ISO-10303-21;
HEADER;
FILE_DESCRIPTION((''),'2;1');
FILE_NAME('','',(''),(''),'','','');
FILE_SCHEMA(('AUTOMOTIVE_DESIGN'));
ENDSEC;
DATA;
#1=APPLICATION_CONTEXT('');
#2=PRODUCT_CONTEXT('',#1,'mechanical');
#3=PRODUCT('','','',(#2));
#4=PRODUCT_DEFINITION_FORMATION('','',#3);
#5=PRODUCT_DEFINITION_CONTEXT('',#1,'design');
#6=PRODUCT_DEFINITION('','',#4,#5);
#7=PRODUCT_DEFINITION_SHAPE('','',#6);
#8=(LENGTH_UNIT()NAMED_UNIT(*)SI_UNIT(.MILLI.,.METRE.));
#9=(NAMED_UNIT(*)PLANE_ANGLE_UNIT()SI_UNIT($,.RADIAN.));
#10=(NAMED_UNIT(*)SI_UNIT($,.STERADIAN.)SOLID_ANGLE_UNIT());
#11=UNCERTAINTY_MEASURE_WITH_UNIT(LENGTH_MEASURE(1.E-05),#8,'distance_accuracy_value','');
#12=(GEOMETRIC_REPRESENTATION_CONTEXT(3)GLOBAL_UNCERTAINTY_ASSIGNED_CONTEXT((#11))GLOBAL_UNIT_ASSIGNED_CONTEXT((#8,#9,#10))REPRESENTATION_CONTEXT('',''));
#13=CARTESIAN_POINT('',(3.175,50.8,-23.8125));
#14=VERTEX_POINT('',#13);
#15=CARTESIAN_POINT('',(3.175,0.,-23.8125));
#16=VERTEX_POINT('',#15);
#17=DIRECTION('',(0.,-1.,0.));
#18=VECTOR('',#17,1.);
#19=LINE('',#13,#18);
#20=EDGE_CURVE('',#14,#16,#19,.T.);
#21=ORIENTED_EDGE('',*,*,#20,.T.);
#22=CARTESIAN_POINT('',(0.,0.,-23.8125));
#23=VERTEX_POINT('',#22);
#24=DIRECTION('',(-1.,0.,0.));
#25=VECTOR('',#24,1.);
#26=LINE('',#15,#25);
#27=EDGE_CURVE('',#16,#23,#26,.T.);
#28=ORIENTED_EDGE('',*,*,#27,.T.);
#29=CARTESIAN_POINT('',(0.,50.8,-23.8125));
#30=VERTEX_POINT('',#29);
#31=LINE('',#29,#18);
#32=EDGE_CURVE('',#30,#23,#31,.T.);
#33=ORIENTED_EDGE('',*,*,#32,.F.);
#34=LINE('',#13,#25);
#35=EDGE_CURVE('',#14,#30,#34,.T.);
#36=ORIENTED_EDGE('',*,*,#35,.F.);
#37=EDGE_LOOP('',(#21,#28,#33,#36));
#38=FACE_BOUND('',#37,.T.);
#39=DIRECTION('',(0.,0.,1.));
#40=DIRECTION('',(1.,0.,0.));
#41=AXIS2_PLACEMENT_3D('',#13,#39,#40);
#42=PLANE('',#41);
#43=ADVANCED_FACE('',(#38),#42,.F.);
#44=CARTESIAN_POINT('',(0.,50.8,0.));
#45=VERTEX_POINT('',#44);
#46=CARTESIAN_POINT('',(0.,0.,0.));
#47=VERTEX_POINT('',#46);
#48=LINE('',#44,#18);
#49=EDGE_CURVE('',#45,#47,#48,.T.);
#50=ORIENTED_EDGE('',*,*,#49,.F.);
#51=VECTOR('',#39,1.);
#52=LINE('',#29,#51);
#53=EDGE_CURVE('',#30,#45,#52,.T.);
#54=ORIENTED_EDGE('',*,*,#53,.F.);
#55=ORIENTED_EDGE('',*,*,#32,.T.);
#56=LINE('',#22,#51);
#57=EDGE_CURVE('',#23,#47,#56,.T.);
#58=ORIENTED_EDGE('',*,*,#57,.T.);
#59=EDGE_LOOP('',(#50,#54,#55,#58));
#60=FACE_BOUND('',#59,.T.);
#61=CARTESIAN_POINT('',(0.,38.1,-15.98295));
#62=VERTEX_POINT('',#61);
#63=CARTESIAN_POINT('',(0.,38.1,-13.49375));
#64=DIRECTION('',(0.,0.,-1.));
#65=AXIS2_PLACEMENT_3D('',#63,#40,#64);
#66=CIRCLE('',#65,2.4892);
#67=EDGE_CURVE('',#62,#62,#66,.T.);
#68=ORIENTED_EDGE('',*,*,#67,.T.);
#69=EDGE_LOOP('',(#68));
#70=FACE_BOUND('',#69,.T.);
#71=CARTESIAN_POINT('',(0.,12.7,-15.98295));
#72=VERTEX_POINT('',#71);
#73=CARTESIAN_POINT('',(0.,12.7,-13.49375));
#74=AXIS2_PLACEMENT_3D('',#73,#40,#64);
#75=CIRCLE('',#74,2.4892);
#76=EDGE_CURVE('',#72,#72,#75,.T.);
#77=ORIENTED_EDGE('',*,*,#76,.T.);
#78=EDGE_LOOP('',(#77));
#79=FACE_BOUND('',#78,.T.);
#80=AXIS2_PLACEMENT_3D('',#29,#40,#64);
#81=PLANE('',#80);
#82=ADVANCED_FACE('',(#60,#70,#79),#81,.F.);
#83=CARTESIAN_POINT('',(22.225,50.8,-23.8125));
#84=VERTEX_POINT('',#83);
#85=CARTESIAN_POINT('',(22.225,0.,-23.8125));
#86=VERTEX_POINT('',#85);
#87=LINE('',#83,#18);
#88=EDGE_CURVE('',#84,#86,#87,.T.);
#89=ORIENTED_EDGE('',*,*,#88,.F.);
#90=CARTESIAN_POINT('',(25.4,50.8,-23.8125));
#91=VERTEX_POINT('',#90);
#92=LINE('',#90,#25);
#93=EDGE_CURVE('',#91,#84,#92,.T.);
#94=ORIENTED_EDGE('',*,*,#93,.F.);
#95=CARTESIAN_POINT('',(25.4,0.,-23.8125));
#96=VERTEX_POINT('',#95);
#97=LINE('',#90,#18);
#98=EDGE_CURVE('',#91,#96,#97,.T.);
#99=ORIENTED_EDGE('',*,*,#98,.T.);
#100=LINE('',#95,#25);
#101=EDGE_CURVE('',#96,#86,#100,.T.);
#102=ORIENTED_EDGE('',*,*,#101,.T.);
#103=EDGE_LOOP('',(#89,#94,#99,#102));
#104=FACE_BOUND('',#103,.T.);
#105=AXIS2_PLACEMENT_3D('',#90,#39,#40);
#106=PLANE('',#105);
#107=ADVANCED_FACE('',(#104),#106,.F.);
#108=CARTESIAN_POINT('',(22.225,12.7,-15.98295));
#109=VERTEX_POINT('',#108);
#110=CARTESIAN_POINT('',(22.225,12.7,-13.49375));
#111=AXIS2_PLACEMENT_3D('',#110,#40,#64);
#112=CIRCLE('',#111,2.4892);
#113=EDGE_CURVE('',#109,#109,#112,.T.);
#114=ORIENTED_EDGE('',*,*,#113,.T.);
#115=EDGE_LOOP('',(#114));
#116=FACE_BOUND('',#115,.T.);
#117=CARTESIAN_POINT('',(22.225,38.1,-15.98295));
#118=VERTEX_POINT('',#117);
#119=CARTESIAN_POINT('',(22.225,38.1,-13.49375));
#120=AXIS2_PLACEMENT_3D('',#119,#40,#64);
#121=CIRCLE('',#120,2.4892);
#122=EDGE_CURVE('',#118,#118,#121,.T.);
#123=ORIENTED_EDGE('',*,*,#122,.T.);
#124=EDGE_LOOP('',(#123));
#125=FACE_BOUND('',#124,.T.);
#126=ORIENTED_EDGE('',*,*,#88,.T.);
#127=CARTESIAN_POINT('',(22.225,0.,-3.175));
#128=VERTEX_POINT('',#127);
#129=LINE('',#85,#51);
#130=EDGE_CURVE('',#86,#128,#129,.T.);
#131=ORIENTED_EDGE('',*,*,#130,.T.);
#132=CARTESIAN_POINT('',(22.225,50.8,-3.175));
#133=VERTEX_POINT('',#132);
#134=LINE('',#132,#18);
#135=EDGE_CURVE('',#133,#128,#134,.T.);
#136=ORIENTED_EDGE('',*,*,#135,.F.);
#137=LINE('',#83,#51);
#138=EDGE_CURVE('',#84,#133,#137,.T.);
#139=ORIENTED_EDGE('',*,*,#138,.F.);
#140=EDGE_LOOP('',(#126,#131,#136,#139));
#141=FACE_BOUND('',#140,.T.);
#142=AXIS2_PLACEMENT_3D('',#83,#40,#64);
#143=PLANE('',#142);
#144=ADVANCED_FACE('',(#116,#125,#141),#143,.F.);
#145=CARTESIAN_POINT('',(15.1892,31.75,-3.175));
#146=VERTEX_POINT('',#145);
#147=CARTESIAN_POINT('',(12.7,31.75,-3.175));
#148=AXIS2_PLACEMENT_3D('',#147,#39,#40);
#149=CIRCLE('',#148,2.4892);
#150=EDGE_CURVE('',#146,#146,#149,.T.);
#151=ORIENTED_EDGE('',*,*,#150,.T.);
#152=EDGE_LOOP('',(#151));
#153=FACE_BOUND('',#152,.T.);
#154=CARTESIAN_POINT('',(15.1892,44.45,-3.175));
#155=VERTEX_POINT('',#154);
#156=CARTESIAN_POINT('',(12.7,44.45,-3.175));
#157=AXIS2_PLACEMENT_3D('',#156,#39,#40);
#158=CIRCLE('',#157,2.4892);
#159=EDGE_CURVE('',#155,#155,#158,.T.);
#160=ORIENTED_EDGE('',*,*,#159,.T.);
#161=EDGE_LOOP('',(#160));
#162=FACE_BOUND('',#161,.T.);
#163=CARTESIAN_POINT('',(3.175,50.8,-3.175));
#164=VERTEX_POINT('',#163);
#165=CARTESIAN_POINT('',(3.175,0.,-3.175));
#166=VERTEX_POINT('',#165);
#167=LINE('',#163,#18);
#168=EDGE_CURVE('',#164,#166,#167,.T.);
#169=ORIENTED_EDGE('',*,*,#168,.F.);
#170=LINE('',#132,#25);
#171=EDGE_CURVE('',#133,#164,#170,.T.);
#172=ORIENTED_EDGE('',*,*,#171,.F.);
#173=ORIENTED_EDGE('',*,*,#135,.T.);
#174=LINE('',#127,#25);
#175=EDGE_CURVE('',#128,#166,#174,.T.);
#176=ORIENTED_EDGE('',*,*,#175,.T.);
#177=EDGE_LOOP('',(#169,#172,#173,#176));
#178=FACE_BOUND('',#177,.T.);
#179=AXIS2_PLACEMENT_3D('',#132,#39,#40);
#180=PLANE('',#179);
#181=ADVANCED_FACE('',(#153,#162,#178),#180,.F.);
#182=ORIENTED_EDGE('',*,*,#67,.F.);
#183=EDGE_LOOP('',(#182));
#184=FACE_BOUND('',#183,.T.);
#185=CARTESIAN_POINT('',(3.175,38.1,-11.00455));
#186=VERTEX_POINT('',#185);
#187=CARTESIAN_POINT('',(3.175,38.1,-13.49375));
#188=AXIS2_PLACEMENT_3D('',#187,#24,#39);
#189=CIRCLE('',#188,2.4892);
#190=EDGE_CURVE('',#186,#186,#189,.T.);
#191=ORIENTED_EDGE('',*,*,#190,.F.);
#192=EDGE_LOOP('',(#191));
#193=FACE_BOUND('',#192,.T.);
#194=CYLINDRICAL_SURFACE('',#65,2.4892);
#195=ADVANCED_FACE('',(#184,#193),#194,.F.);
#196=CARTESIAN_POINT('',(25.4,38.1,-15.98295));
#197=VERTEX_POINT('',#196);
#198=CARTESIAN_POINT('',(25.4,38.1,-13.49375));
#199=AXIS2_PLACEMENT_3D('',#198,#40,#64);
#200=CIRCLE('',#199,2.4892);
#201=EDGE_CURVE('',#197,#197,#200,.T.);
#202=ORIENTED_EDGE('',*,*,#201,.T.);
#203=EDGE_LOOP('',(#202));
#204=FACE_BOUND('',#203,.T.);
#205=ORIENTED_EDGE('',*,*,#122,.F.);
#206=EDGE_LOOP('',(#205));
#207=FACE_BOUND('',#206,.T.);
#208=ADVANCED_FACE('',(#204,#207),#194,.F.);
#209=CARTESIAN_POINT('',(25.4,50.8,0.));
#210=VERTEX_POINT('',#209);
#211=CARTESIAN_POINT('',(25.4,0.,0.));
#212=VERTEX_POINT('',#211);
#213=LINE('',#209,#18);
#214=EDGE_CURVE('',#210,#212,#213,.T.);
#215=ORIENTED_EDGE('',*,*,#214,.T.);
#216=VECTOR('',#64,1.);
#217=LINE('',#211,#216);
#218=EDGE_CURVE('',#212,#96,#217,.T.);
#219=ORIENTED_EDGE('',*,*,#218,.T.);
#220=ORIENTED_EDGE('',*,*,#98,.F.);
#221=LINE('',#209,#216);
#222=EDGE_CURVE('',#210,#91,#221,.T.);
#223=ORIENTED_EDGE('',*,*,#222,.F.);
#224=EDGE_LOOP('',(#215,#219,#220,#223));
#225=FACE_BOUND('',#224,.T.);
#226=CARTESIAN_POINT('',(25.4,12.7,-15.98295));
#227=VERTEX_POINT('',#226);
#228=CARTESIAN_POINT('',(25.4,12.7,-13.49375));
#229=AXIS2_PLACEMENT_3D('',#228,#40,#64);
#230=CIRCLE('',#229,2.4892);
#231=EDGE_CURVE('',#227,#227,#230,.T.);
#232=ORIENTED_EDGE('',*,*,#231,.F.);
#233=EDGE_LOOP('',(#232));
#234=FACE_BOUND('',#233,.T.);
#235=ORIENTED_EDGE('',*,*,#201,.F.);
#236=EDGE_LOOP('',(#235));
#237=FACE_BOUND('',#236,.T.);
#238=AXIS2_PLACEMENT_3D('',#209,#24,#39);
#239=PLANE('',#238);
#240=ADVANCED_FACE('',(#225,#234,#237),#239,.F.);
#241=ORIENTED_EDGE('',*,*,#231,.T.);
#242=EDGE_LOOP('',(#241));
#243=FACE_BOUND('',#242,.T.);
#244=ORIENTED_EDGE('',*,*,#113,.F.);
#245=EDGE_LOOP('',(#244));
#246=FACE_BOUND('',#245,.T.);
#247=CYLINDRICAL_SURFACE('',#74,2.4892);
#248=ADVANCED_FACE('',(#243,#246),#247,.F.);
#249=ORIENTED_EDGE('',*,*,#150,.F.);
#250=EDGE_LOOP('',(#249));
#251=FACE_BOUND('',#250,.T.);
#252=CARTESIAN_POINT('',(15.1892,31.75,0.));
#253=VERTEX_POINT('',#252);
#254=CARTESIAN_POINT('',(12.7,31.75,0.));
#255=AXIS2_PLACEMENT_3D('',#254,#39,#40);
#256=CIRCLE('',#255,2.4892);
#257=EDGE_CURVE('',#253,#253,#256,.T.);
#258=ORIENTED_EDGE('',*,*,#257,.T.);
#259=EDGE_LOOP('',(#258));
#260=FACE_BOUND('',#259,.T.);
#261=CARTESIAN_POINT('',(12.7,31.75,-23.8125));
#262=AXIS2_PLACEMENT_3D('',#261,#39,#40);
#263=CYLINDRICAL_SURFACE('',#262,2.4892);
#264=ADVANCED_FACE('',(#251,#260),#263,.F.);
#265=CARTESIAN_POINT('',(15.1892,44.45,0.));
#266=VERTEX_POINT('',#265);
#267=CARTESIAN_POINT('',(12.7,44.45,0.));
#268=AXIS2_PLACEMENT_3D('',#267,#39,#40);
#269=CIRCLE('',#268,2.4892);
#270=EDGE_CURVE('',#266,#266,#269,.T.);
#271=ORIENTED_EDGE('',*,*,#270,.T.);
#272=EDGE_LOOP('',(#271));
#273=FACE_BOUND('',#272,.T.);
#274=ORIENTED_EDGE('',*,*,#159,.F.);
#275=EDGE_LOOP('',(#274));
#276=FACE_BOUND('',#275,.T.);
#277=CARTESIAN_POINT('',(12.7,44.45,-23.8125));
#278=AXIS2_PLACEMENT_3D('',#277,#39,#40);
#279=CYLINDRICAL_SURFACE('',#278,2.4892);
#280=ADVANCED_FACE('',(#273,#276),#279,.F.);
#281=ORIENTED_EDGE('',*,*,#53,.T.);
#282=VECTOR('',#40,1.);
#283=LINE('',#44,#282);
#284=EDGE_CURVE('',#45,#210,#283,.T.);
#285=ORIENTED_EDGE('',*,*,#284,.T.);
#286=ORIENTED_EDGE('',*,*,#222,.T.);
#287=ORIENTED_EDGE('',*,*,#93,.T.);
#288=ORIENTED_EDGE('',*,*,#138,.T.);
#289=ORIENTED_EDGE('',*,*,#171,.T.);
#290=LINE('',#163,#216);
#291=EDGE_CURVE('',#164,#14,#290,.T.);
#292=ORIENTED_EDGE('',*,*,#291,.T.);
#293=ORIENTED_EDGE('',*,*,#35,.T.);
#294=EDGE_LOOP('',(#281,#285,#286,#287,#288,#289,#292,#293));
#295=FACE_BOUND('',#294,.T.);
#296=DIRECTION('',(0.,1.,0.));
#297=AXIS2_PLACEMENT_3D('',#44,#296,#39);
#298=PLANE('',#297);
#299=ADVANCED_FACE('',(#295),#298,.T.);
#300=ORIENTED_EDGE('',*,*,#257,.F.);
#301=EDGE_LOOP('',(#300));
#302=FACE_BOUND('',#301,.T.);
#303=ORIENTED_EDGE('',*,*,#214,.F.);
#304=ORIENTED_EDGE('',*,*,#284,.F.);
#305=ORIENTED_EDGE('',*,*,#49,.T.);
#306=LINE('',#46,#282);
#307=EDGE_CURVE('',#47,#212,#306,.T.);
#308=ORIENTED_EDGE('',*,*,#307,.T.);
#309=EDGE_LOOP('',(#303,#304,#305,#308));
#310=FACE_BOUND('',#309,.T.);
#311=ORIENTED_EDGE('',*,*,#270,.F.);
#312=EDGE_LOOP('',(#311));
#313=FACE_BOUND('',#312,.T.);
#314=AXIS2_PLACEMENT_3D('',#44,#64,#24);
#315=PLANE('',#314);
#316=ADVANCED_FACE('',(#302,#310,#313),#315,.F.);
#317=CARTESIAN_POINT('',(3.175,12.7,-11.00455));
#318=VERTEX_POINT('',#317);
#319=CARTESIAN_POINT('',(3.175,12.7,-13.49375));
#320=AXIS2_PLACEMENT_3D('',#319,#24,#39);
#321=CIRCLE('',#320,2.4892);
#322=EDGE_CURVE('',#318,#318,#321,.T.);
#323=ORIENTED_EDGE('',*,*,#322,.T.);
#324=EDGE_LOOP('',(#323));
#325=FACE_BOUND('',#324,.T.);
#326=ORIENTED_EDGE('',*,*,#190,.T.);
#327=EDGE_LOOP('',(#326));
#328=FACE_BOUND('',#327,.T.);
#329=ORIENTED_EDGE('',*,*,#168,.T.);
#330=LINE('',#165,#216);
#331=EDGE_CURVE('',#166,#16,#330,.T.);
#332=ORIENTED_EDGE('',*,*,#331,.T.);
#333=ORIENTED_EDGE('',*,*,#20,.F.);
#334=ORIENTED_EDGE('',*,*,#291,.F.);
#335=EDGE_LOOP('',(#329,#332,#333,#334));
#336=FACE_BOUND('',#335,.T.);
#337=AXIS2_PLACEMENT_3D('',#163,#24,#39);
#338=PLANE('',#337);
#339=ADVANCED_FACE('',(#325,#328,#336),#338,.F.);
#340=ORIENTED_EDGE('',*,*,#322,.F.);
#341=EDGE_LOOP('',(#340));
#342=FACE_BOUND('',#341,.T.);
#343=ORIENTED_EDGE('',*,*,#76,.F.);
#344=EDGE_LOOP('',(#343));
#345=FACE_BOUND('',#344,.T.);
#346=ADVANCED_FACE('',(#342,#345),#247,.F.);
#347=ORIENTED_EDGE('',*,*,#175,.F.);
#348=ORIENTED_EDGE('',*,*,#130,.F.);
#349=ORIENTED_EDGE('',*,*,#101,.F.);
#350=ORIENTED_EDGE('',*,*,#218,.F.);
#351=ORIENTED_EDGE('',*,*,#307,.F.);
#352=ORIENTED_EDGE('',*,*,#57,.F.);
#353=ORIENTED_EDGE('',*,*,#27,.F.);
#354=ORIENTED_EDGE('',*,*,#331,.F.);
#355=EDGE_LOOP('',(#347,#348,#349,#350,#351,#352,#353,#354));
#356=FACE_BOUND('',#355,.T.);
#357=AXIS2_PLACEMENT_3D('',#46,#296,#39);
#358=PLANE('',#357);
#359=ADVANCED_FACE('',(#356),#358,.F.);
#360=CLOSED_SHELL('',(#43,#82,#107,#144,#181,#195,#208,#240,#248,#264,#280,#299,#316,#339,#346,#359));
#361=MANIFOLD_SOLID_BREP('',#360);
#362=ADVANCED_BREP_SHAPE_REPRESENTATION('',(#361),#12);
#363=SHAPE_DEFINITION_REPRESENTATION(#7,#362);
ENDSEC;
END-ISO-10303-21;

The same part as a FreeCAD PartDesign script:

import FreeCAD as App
import Part
import Sketcher
Q = App.Units.Quantity


def add_polygon(sketch, points):
    """Adds a closed chain of lines whose ends are joined by coincident constraints."""
    first, n = sketch.GeometryCount, len(points)
    for a, b in zip(points, points[1:] + points[:1]):
        sketch.addGeometry(Part.LineSegment(App.Vector(*a, 0), App.Vector(*b, 0)), False)
    for i in range(n):
        sketch.addConstraint(Sketcher.Constraint("Coincident", first + i, 2, first + (i + 1) % n, 1))

doc = App.newDocument("Part")
body = doc.addObject("PartDesign::Body", "Body")

sketch1 = body.newObject("Sketcher::SketchObject", "Sketch")
sketch1.AttachmentSupport = (doc.getObject("XZ_Plane"), [""])
sketch1.MapMode = "FlatFace"
add_polygon(sketch1, [(0, 0), (25.4, 0), (25.4, -23.8125), (22.225, -23.8125), (22.225, -3.175), (3.175, -3.175), (3.175, -23.8125), (0, -23.8125)])
sketch1.addConstraint([
    Sketcher.Constraint("Horizontal", 0),
    Sketcher.Constraint("Vertical", 1),
    Sketcher.Constraint("Horizontal", 2),
    Sketcher.Constraint("Vertical", 3),
    Sketcher.Constraint("Horizontal", 4),
    Sketcher.Constraint("Vertical", 5),
    Sketcher.Constraint("Horizontal", 6),
    Sketcher.Constraint("Vertical", 7),
    Sketcher.Constraint("Coincident", 7, 2, -1, 1),
    Sketcher.Constraint("Horizontal", 2, 2, 5, 2),
    Sketcher.Constraint("Equal", 2, 6),
    Sketcher.Constraint("DistanceX", 0, 1, 0, 2, Q("1 in")),
    Sketcher.Constraint("DistanceX", 4, 2, 4, 1, Q("0.75 in")),
    Sketcher.Constraint("DistanceY", 1, 2, 1, 1, Q("0.9375 in")),
    Sketcher.Constraint("DistanceY", 3, 1, 3, 2, Q("0.8125 in")),
])
pad1 = body.newObject("PartDesign::Pad", "Pad")
pad1.Profile = sketch1
pad1.Length = Q("2 in")
pad1.Reversed = True

sketch2 = body.newObject("Sketcher::SketchObject", "Sketch001")
sketch2.AttachmentSupport = (doc.getObject("YZ_Plane"), [""])
sketch2.MapMode = "FlatFace"
sketch2.AttachmentOffset = App.Placement(App.Vector(0, 0, 0.125 * 25.4), App.Rotation())
sketch2.addGeometry([
    Part.Circle(App.Vector(12.7, -13.49375, 0), App.Vector(0, 0, 1), 2.4892),
    Part.Circle(App.Vector(38.1, -13.49375, 0), App.Vector(0, 0, 1), 2.4892),
], False)
sketch2.addConstraint([
    Sketcher.Constraint("Equal", 0, 1),
    Sketcher.Constraint("Horizontal", 0, 3, 1, 3),
    Sketcher.Constraint("Diameter", 0, Q("0.196 in")),
    Sketcher.Constraint("DistanceX", 0, 3, 1, 3, Q("1 in")),
    Sketcher.Constraint("DistanceX", -1, 1, 0, 3, Q("0.5 in")),
    Sketcher.Constraint("DistanceY", 0, 3, -1, 1, Q("0.53125 in")),
])
pocket1 = body.newObject("PartDesign::Pocket", "Pocket")
pocket1.Profile = sketch2
pocket1.Type = "ThroughAll"
pocket1.Midplane = True

sketch3 = body.newObject("Sketcher::SketchObject", "Sketch002")
sketch3.AttachmentSupport = (doc.getObject("XY_Plane"), [""])
sketch3.MapMode = "FlatFace"
sketch3.addGeometry([
    Part.Circle(App.Vector(12.7, 44.45, 0), App.Vector(0, 0, 1), 2.4892),
    Part.Circle(App.Vector(12.7, 31.75, 0), App.Vector(0, 0, 1), 2.4892),
], False)
sketch3.addConstraint([
    Sketcher.Constraint("Equal", 0, 1),
    Sketcher.Constraint("Vertical", 0, 3, 1, 3),
    Sketcher.Constraint("Diameter", 0, Q("0.196 in")),
    Sketcher.Constraint("DistanceX", -1, 1, 0, 3, Q("0.5 in")),
    Sketcher.Constraint("DistanceY", 1, 3, 0, 3, Q("0.5 in")),
    Sketcher.Constraint("DistanceY", -1, 1, 0, 3, Q("1.75 in")),
])
pocket2 = body.newObject("PartDesign::Pocket", "Pocket001")
pocket2.Profile = sketch3
pocket2.Type = "ThroughAll"

doc.recompute()
